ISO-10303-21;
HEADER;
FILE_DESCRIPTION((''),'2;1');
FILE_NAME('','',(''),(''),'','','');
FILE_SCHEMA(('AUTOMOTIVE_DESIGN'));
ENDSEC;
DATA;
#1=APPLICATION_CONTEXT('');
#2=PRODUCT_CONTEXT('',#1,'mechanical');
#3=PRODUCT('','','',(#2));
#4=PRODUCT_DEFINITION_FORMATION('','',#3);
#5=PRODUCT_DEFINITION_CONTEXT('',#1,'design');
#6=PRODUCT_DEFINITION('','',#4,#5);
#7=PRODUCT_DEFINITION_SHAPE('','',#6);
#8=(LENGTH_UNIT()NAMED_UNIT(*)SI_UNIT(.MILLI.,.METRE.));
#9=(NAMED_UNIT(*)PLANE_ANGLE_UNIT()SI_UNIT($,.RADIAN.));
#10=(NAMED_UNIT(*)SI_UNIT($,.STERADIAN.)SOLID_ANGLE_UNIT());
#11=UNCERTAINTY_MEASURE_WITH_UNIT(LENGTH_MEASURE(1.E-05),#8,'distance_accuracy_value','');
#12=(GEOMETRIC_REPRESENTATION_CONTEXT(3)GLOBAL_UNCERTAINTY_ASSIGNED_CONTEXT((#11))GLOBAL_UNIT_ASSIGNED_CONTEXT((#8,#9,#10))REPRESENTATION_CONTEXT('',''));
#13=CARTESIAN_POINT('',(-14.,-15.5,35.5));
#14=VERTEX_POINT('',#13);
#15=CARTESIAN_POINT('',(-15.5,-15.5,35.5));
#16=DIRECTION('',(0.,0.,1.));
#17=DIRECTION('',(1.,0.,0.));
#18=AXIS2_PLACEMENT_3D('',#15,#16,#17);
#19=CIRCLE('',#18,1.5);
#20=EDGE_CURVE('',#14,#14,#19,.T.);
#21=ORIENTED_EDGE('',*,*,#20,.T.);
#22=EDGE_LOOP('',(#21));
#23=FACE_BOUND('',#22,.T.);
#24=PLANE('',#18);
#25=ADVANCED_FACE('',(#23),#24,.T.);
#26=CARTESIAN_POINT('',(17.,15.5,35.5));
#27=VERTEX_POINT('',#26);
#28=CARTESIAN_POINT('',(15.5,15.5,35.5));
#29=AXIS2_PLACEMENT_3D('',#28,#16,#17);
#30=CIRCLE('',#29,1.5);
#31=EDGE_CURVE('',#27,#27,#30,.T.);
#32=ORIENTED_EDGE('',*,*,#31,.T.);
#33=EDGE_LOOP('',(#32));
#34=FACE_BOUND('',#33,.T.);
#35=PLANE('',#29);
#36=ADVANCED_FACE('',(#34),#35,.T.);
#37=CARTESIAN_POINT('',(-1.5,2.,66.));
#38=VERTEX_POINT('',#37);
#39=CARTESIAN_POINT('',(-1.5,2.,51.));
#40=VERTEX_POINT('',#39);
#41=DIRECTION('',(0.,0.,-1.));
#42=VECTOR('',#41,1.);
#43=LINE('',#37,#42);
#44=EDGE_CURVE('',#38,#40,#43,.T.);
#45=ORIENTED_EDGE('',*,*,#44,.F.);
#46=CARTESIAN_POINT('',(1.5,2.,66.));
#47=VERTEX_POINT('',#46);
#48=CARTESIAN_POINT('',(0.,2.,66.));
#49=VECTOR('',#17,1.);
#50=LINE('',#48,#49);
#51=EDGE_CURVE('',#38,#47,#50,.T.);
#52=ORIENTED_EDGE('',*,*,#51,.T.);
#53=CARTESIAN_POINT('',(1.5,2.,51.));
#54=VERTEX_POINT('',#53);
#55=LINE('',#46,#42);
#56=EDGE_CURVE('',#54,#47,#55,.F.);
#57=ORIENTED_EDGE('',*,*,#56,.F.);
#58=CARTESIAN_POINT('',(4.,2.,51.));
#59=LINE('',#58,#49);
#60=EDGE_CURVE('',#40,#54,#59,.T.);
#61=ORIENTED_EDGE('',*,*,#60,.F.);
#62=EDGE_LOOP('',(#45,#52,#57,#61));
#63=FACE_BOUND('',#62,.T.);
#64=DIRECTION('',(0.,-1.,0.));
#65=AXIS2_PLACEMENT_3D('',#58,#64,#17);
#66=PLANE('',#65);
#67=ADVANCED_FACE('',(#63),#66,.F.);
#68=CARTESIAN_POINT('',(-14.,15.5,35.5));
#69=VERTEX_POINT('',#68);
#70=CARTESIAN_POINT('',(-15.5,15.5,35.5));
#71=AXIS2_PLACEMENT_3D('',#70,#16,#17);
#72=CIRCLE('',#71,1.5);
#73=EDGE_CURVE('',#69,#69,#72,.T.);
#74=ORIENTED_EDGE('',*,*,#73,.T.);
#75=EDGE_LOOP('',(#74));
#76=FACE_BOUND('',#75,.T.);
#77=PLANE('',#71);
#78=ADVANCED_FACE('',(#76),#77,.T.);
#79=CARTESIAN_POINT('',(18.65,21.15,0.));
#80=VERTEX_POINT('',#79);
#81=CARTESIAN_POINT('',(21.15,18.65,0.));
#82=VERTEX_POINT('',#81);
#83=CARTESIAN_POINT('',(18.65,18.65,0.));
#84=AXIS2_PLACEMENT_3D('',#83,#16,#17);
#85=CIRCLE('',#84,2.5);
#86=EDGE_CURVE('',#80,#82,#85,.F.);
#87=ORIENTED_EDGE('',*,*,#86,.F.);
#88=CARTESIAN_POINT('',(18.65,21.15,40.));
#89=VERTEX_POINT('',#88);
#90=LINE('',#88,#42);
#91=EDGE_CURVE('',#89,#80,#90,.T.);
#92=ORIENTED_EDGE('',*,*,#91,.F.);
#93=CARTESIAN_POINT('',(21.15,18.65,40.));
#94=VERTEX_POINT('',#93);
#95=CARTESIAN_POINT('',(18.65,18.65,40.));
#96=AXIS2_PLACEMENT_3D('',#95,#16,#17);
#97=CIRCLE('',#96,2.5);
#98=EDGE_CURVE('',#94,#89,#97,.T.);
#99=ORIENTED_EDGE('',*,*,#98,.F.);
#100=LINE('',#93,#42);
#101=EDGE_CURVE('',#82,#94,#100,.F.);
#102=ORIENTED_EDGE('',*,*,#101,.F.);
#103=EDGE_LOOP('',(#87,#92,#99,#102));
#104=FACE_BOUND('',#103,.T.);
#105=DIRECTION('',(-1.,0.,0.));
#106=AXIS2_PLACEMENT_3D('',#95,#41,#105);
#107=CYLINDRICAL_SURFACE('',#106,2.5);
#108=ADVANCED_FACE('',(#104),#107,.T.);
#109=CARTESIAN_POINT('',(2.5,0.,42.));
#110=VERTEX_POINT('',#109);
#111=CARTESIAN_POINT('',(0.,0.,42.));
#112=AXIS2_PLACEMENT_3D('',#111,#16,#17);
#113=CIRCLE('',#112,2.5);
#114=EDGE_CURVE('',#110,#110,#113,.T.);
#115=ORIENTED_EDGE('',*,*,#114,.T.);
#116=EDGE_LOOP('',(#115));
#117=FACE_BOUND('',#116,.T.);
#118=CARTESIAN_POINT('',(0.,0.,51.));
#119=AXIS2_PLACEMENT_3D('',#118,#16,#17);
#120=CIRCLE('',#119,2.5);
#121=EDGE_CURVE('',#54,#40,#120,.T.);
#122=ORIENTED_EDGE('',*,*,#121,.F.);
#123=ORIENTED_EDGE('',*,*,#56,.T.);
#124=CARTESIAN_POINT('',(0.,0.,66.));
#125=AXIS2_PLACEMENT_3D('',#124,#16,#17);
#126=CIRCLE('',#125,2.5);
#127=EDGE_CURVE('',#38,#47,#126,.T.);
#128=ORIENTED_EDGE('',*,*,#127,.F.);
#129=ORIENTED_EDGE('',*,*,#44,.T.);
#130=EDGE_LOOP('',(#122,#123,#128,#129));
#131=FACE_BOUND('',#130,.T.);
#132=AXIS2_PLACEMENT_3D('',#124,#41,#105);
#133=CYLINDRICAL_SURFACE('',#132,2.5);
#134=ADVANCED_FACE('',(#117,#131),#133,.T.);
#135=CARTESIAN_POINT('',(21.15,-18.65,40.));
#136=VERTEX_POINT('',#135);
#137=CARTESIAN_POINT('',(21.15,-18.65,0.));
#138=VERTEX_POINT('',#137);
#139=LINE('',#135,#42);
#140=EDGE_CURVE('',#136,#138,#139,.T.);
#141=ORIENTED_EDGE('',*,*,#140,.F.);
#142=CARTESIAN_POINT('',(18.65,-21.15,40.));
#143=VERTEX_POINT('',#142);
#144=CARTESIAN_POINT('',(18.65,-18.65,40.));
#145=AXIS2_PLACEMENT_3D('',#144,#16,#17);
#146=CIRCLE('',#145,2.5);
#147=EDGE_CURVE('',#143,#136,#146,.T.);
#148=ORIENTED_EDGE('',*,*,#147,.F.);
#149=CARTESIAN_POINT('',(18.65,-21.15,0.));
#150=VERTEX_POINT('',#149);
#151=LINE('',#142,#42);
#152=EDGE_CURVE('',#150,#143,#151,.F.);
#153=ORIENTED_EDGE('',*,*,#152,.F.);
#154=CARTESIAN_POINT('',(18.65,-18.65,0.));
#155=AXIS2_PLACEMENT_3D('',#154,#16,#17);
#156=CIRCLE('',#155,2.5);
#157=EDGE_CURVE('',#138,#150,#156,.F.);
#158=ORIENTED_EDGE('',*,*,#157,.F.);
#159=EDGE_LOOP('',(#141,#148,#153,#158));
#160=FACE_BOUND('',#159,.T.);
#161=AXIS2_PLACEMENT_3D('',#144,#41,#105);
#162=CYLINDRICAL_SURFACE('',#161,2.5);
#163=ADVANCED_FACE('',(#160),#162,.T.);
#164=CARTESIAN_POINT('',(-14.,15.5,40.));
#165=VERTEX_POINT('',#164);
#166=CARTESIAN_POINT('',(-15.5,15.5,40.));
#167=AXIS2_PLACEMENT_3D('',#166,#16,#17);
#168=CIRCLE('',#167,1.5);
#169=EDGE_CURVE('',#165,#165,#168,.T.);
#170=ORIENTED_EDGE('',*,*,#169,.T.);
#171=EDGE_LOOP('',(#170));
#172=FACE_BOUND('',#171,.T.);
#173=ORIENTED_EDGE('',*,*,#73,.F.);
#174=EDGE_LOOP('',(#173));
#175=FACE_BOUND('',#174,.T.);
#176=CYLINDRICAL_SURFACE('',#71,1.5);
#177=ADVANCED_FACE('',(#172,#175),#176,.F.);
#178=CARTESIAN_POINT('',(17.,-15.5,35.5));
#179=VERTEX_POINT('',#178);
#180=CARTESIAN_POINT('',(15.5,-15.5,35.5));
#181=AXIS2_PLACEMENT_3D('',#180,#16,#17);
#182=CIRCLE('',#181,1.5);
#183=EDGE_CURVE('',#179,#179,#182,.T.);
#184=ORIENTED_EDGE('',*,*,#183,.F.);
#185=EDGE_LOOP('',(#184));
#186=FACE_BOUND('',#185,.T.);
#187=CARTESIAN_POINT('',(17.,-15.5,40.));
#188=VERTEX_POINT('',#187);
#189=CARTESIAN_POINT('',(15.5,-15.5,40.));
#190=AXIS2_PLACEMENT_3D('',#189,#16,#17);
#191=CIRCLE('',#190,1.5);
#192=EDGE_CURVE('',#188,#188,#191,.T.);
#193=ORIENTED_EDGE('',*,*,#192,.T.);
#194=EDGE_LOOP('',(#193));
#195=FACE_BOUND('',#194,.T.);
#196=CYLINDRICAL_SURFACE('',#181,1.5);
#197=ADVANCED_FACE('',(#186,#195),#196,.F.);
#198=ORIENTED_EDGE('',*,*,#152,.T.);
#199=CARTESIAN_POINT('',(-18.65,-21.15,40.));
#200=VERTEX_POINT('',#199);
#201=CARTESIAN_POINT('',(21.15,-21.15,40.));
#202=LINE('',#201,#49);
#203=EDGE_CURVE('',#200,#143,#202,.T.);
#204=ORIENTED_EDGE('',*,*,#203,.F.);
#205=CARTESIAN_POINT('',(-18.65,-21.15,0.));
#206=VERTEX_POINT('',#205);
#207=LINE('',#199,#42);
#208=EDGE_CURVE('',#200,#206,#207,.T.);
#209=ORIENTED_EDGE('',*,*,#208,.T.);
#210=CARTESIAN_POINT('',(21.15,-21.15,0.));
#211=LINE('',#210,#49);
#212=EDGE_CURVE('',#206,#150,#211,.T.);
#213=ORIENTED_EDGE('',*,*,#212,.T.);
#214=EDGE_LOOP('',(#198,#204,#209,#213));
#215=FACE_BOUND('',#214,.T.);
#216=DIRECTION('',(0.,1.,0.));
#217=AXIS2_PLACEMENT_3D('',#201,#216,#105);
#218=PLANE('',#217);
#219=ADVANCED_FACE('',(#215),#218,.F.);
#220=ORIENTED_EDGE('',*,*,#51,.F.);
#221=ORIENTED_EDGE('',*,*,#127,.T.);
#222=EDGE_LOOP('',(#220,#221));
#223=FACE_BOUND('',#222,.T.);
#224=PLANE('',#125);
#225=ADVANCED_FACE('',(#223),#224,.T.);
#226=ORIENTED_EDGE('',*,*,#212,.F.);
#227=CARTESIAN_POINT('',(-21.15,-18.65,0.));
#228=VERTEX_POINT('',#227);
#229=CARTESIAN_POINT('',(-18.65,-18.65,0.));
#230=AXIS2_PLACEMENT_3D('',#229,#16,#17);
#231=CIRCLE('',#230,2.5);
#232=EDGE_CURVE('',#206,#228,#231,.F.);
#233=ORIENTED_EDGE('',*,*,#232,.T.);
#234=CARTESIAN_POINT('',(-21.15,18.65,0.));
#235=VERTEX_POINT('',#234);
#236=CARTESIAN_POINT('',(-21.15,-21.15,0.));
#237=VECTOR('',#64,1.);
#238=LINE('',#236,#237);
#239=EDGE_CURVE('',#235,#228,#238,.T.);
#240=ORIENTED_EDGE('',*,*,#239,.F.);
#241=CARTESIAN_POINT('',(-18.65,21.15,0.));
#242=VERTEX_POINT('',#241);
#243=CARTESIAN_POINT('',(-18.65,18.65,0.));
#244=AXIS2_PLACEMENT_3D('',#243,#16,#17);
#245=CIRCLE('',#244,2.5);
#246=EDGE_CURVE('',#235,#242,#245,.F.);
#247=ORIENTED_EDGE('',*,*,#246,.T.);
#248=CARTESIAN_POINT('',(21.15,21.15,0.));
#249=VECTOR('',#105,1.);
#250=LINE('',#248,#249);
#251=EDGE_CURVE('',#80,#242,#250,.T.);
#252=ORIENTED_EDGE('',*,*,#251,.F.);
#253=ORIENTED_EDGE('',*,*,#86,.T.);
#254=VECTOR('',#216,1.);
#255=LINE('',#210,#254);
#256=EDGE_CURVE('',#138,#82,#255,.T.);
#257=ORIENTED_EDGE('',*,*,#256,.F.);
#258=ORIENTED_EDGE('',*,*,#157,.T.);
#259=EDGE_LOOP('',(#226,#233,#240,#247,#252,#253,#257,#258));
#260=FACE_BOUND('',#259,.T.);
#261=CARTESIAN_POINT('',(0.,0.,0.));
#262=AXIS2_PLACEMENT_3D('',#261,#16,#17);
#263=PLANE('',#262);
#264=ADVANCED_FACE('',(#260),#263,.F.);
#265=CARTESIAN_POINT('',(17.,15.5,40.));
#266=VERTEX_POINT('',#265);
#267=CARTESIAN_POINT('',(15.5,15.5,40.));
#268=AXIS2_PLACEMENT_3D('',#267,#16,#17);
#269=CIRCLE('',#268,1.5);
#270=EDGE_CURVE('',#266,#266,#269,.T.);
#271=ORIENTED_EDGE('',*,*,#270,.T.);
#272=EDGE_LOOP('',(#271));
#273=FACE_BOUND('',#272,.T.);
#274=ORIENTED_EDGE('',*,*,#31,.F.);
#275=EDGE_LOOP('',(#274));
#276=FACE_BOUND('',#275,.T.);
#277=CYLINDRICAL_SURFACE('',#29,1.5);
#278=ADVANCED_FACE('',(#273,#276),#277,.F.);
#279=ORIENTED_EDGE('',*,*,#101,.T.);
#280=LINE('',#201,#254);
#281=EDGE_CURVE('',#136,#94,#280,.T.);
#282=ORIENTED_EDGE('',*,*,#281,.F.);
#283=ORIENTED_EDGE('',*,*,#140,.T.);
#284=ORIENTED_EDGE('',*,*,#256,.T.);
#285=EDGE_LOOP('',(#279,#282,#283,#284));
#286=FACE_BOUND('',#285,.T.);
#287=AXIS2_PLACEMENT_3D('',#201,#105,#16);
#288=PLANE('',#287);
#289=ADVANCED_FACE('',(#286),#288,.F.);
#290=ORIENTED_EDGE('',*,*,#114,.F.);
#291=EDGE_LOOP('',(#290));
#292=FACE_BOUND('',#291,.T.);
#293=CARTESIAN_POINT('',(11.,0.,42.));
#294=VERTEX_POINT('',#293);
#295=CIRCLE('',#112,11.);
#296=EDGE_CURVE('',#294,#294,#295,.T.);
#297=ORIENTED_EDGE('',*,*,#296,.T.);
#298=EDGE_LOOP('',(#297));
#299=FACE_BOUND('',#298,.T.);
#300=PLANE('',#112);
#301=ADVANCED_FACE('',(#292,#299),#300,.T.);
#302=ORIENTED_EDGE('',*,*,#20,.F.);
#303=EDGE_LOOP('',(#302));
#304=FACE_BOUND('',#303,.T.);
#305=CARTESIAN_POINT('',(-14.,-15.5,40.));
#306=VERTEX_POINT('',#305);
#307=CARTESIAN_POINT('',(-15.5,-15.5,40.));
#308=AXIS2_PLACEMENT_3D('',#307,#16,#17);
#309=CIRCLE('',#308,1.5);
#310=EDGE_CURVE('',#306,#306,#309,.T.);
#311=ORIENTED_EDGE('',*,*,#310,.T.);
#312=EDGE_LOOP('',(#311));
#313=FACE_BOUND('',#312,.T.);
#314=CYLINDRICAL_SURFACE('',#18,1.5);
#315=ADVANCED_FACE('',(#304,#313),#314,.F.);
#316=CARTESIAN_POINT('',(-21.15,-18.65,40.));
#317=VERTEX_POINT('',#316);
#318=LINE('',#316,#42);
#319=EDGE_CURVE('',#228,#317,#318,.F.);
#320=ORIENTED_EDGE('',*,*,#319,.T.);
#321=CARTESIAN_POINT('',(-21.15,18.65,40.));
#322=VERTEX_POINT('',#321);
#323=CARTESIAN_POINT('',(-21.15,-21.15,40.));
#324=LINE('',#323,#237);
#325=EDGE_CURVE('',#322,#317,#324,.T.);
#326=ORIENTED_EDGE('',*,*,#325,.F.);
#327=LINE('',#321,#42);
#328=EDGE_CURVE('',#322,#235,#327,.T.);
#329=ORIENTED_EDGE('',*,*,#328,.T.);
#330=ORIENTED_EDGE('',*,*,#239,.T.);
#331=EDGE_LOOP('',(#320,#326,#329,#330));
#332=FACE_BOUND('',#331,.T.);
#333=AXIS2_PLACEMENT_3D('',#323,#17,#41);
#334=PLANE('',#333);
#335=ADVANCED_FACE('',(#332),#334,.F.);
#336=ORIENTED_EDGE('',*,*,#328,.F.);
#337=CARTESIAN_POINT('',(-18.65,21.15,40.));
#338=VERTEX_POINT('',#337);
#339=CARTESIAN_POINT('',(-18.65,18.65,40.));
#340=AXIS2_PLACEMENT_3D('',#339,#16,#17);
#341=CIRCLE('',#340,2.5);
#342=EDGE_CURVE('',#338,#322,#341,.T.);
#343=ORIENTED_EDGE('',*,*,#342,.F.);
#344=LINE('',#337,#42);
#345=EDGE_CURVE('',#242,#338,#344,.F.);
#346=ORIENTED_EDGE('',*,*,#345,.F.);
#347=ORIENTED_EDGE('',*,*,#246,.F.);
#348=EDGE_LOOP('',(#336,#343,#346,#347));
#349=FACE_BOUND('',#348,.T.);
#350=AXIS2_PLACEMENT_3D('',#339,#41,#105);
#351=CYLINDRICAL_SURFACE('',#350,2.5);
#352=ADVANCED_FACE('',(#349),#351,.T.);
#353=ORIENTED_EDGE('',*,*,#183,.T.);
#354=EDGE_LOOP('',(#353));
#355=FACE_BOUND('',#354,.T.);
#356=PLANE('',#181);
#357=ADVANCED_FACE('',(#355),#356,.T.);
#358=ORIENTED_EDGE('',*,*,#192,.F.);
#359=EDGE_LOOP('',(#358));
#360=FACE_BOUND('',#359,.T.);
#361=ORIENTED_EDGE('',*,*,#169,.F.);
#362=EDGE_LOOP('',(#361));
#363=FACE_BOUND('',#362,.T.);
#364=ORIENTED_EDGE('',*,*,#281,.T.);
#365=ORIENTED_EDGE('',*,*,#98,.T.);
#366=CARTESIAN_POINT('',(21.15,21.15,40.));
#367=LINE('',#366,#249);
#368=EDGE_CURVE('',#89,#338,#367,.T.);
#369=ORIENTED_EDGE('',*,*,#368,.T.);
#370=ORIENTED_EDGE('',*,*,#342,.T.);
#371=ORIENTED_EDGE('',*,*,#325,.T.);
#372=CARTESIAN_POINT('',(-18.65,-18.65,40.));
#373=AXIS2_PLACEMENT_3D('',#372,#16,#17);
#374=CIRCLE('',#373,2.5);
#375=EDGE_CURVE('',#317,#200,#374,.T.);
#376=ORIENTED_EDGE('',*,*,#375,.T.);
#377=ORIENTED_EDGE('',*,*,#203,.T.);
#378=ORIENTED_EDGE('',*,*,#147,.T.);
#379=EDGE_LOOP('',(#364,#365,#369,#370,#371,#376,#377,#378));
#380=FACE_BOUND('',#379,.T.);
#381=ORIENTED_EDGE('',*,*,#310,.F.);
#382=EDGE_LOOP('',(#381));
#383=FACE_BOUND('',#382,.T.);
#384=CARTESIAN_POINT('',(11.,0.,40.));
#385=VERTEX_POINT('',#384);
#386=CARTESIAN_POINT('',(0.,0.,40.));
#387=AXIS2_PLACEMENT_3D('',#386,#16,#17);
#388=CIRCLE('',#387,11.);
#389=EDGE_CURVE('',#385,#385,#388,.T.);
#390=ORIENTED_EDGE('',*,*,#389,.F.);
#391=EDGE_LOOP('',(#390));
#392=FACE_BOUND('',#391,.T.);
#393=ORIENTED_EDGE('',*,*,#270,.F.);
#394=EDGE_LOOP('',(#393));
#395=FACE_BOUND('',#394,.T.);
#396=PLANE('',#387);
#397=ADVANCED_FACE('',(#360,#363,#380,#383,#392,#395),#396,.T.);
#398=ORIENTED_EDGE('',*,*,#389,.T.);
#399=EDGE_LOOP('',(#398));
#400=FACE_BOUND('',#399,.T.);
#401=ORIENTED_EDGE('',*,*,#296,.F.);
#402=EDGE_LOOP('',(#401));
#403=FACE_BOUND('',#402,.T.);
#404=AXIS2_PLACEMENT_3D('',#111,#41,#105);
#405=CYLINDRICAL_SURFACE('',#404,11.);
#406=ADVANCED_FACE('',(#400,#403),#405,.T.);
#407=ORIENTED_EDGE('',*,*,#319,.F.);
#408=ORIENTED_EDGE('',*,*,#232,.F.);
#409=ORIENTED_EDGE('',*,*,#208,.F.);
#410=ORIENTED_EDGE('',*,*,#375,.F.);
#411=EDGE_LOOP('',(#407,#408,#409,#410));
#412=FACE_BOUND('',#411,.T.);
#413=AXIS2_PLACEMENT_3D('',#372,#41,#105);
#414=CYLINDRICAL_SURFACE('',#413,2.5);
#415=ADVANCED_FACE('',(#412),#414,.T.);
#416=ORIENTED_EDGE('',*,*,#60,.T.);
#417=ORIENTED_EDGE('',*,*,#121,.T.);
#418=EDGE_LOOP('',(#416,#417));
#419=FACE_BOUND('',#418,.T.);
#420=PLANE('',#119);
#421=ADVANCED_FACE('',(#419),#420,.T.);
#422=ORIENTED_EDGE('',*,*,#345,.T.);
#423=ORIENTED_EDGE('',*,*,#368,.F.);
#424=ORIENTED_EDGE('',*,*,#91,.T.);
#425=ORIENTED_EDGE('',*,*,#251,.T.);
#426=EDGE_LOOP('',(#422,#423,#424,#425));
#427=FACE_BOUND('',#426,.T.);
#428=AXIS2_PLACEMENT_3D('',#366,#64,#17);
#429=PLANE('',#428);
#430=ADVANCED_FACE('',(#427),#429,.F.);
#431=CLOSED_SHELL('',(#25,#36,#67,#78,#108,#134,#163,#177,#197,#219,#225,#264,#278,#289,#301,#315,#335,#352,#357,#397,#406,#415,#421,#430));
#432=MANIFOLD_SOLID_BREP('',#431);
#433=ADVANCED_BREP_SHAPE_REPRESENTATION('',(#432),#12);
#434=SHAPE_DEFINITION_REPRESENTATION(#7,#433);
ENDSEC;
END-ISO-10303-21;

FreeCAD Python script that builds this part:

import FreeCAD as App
import Part
import Sketcher
from FreeCAD import Vector


def edges_at(feature, points):
    """Names of the edges that pass closest to the given points."""
    edges = feature.Shape.Edges
    near = lambda p: min(range(len(edges)), key=lambda i: edges[i].distToShape(Part.Vertex(*p))[0])
    return sorted({f"Edge{near(p) + 1}" for p in points})

doc = App.newDocument("Part")
body = doc.addObject("PartDesign::Body", "Body")

# Sketch on XY plane
sketch1 = body.newObject("Sketcher::SketchObject", "Sketch")
sketch1.AttachmentSupport = (doc.getObject("XY_Plane"), [""])
sketch1.MapMode = "FlatFace"
sketch1.addGeometry(Part.LineSegment(Vector(-21.15, 21.15, 0), Vector(-21.15, -21.15, 0)), False)
sketch1.addGeometry(Part.LineSegment(Vector(-21.15, -21.15, 0), Vector(21.15, -21.15, 0)), False)
sketch1.addGeometry(Part.LineSegment(Vector(21.15, -21.15, 0), Vector(21.15, 21.15, 0)), False)
sketch1.addGeometry(Part.LineSegment(Vector(21.15, 21.15, 0), Vector(-21.15, 21.15, 0)), False)
sketch1.addConstraint(Sketcher.Constraint("Coincident", 0, 2, 1, 1))
sketch1.addConstraint(Sketcher.Constraint("Coincident", 1, 2, 2, 1))
sketch1.addConstraint(Sketcher.Constraint("Coincident", 2, 2, 3, 1))
sketch1.addConstraint(Sketcher.Constraint("Coincident", 3, 2, 0, 1))
sketch1.addConstraint(Sketcher.Constraint("Vertical", 0))
sketch1.addConstraint(Sketcher.Constraint("Horizontal", 1))
sketch1.addConstraint(Sketcher.Constraint("Vertical", 2))
sketch1.addConstraint(Sketcher.Constraint("Horizontal", 3))
sketch1.addConstraint(Sketcher.Constraint("Symmetric", 0, 2, 2, 2, -1, 1))
sketch1.addConstraint(Sketcher.Constraint("Equal", 3, 0))
sketch1.addConstraint(Sketcher.Constraint("DistanceX", 1, 1, 1, 2, 42.3))
pad1 = body.newObject("PartDesign::Pad", "Pad")
pad1.Profile = sketch1
pad1.Length = 40
doc.recompute()

fillet = body.newObject("PartDesign::Fillet", "Fillet")
fillet.Base = (pad1, edges_at(pad1, [
    (-21.15, 21.15, 20),
    (21.15, 21.15, 20),
    (21.15, -21.15, 20),
    (-21.15, -21.15, 20),
]))
fillet.Radius = 2.5

# Sketch on XY plane
sketch2 = body.newObject("Sketcher::SketchObject", "Sketch001")
sketch2.AttachmentSupport = (doc.getObject("XY_Plane"), [""])
sketch2.MapMode = "FlatFace"
sketch2.AttachmentOffset = App.Placement(Vector(0, 0, 40), App.Rotation())
sketch2.addGeometry(Part.Circle(Vector(-15.5, 15.5, 0), Vector(0, 0, 1), 1.5), False)
sketch2.addGeometry(Part.Circle(Vector(15.5, 15.5, 0), Vector(0, 0, 1), 1.5), False)
sketch2.addGeometry(Part.Circle(Vector(15.5, -15.5, 0), Vector(0, 0, 1), 1.5), False)
sketch2.addGeometry(Part.Circle(Vector(-15.5, -15.5, 0), Vector(0, 0, 1), 1.5), False)
sketch2.addConstraint(Sketcher.Constraint("Equal", 0, 1))
sketch2.addConstraint(Sketcher.Constraint("Equal", 1, 2))
sketch2.addConstraint(Sketcher.Constraint("Equal", 2, 3))
sketch2.addConstraint(Sketcher.Constraint("Symmetric", 0, 3, 2, 3, -1, 1))
sketch2.addConstraint(Sketcher.Constraint("Symmetric", 1, 3, 3, 3, -1, 1))
sketch2.addConstraint(Sketcher.Constraint("Symmetric", 0, 3, 1, 3, -2))
sketch2.addConstraint(Sketcher.Constraint("Diameter", 0, 3.0))
sketch2.addConstraint(Sketcher.Constraint("DistanceX", 0, 3, 1, 3, 31.0))
sketch2.addConstraint(Sketcher.Constraint("DistanceY", 2, 3, 1, 3, 31.0))
pocket1 = body.newObject("PartDesign::Pocket", "Pocket")
pocket1.Profile = sketch2
pocket1.Length = 4.5

# Sketch on XY plane
sketch3 = body.newObject("Sketcher::SketchObject", "Sketch002")
sketch3.AttachmentSupport = (doc.getObject("XY_Plane"), [""])
sketch3.MapMode = "FlatFace"
sketch3.AttachmentOffset = App.Placement(Vector(0, 0, 40), App.Rotation())
sketch3.addGeometry(Part.Circle(Vector(0, 0, 0), Vector(0, 0, 1), 11), False)
sketch3.addConstraint(Sketcher.Constraint("Coincident", 0, 3, -1, 1))
sketch3.addConstraint(Sketcher.Constraint("Diameter", 0, 22.0))
pad2 = body.newObject("PartDesign::Pad", "Pad001")
pad2.Profile = sketch3
pad2.Length = 2

# Sketch on XY plane
sketch4 = body.newObject("Sketcher::SketchObject", "Sketch003")
sketch4.AttachmentSupport = (doc.getObject("XY_Plane"), [""])
sketch4.MapMode = "FlatFace"
sketch4.AttachmentOffset = App.Placement(Vector(0, 0, 42), App.Rotation())
sketch4.addGeometry(Part.Circle(Vector(0, 0, 0), Vector(0, 0, 1), 2.5), False)
sketch4.addConstraint(Sketcher.Constraint("Coincident", 0, 3, -1, 1))
sketch4.addConstraint(Sketcher.Constraint("Diameter", 0, 5.0))
pad3 = body.newObject("PartDesign::Pad", "Pad002")
pad3.Profile = sketch4
pad3.Length = 24

# Sketch on XY plane
sketch5 = body.newObject("Sketcher::SketchObject", "Sketch004")
sketch5.AttachmentSupport = (doc.getObject("XY_Plane"), [""])
sketch5.MapMode = "FlatFace"
sketch5.AttachmentOffset = App.Placement(Vector(0, 0, 66), App.Rotation())
sketch5.addGeometry(Part.LineSegment(Vector(-4, 3, 0), Vector(-4, 2, 0)), False)
sketch5.addGeometry(Part.LineSegment(Vector(-4, 2, 0), Vector(4, 2, 0)), False)
sketch5.addGeometry(Part.LineSegment(Vector(4, 2, 0), Vector(4, 3, 0)), False)
sketch5.addGeometry(Part.LineSegment(Vector(4, 3, 0), Vector(-4, 3, 0)), False)
sketch5.addConstraint(Sketcher.Constraint("Coincident", 0, 2, 1, 1))
sketch5.addConstraint(Sketcher.Constraint("Coincident", 1, 2, 2, 1))
sketch5.addConstraint(Sketcher.Constraint("Coincident", 2, 2, 3, 1))
sketch5.addConstraint(Sketcher.Constraint("Coincident", 3, 2, 0, 1))
sketch5.addConstraint(Sketcher.Constraint("Vertical", 0))
sketch5.addConstraint(Sketcher.Constraint("Horizontal", 1))
sketch5.addConstraint(Sketcher.Constraint("Vertical", 2))
sketch5.addConstraint(Sketcher.Constraint("Horizontal", 3))
sketch5.addConstraint(Sketcher.Constraint("DistanceX", 1, 1, 1, 2, 8.0))
sketch5.addConstraint(Sketcher.Constraint("DistanceY", 0, 2, 0, 1, 1.0))
sketch5.addConstraint(Sketcher.Constraint("DistanceX", 0, 2, -1, 1, 4.0))
sketch5.addConstraint(Sketcher.Constraint("DistanceY", -1, 1, 0, 2, 2.0))
pocket2 = body.newObject("PartDesign::Pocket", "Pocket001")
pocket2.Profile = sketch5
pocket2.Length = 15

doc.recompute()
